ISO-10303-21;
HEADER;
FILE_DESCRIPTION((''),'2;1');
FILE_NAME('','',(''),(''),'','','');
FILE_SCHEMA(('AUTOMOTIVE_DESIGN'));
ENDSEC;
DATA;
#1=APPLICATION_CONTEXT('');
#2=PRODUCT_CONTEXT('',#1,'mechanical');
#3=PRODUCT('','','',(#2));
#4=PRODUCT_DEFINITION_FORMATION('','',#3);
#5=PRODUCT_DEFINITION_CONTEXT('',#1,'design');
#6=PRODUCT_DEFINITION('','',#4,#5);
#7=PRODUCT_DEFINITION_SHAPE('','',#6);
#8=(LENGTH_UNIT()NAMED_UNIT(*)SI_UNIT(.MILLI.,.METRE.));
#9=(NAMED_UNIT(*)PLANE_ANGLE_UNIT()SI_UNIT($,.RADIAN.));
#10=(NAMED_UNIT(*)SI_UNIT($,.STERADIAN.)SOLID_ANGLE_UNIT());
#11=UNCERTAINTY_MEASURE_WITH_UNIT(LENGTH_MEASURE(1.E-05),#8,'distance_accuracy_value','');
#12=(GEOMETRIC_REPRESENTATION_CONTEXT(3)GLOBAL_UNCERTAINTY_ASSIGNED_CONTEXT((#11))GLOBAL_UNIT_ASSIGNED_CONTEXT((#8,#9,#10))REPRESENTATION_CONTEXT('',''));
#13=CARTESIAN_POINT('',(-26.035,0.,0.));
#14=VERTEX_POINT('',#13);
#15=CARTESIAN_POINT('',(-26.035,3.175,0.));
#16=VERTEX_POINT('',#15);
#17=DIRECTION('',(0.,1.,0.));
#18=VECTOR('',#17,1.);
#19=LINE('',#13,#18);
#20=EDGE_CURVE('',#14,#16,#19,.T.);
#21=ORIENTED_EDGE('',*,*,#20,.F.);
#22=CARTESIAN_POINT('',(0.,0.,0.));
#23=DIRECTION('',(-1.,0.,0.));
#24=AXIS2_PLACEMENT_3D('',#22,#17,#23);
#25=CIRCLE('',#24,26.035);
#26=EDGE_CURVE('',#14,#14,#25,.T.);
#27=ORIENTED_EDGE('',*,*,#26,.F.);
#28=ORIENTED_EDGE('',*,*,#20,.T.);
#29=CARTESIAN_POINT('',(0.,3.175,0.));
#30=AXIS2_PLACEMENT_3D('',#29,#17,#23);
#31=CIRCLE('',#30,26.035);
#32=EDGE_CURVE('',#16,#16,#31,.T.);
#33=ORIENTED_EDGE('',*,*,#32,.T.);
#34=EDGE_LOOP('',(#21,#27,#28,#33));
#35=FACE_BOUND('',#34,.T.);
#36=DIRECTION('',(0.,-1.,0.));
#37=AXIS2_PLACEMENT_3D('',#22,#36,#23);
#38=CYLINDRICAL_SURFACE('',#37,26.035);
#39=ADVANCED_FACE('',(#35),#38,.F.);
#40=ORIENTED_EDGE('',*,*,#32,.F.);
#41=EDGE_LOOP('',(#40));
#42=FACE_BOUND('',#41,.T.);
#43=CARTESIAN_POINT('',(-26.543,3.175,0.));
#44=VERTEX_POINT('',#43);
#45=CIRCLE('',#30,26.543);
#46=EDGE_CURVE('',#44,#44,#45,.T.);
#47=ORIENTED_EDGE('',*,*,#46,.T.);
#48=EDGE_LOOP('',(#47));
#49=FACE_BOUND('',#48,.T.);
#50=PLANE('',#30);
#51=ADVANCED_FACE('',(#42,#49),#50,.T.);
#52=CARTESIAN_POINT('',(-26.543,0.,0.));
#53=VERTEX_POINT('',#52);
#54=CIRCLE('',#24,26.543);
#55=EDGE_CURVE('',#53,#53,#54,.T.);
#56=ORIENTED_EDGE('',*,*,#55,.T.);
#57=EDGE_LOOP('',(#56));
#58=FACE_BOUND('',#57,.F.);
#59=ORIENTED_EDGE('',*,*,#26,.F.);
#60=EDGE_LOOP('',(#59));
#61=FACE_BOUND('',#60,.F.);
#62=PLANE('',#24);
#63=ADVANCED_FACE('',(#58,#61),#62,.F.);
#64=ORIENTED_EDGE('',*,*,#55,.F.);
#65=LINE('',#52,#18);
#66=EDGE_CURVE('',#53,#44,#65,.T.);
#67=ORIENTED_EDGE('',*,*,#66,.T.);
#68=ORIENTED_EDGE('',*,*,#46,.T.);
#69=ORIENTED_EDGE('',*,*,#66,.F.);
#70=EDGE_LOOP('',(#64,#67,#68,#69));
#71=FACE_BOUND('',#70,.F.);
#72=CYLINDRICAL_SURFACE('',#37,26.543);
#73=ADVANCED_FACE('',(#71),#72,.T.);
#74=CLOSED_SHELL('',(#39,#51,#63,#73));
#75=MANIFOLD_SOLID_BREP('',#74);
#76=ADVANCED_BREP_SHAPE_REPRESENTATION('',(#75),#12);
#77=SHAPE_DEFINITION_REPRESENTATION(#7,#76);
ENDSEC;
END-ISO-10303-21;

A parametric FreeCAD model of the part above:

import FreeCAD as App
import Part
import Sketcher
Q = App.Units.Quantity

doc = App.newDocument("Part")
body = doc.addObject("PartDesign::Body", "Body")

# Sketch on XZ plane
sketch1 = body.newObject("Sketcher::SketchObject", "Sketch")
sketch1.AttachmentSupport = (doc.getObject("XZ_Plane"), [""])
sketch1.MapMode = "FlatFace"
sketch1.addGeometry(Part.Circle(App.Vector(0, 0, 0), App.Vector(0, 0, 1), 27), False)
sketch1.addGeometry(Part.Circle(App.Vector(0, 0, 0), App.Vector(0, 0, 1), 26), False)
sketch1.addConstraint(Sketcher.Constraint("Coincident", 0, 3, -1, 1))
sketch1.addConstraint(Sketcher.Constraint("Coincident", 1, 3, -1, 1))
sketch1.addConstraint(Sketcher.Constraint("Diameter", 1, Q("2.05 in")))
sketch1.addConstraint(Sketcher.Constraint("Diameter", 0, Q("2.09 in")))
pad1 = body.newObject("PartDesign::Pad", "Pad")
pad1.Profile = sketch1
pad1.Length = Q("0.125 in")
pad1.Reversed = True

doc.recompute()
